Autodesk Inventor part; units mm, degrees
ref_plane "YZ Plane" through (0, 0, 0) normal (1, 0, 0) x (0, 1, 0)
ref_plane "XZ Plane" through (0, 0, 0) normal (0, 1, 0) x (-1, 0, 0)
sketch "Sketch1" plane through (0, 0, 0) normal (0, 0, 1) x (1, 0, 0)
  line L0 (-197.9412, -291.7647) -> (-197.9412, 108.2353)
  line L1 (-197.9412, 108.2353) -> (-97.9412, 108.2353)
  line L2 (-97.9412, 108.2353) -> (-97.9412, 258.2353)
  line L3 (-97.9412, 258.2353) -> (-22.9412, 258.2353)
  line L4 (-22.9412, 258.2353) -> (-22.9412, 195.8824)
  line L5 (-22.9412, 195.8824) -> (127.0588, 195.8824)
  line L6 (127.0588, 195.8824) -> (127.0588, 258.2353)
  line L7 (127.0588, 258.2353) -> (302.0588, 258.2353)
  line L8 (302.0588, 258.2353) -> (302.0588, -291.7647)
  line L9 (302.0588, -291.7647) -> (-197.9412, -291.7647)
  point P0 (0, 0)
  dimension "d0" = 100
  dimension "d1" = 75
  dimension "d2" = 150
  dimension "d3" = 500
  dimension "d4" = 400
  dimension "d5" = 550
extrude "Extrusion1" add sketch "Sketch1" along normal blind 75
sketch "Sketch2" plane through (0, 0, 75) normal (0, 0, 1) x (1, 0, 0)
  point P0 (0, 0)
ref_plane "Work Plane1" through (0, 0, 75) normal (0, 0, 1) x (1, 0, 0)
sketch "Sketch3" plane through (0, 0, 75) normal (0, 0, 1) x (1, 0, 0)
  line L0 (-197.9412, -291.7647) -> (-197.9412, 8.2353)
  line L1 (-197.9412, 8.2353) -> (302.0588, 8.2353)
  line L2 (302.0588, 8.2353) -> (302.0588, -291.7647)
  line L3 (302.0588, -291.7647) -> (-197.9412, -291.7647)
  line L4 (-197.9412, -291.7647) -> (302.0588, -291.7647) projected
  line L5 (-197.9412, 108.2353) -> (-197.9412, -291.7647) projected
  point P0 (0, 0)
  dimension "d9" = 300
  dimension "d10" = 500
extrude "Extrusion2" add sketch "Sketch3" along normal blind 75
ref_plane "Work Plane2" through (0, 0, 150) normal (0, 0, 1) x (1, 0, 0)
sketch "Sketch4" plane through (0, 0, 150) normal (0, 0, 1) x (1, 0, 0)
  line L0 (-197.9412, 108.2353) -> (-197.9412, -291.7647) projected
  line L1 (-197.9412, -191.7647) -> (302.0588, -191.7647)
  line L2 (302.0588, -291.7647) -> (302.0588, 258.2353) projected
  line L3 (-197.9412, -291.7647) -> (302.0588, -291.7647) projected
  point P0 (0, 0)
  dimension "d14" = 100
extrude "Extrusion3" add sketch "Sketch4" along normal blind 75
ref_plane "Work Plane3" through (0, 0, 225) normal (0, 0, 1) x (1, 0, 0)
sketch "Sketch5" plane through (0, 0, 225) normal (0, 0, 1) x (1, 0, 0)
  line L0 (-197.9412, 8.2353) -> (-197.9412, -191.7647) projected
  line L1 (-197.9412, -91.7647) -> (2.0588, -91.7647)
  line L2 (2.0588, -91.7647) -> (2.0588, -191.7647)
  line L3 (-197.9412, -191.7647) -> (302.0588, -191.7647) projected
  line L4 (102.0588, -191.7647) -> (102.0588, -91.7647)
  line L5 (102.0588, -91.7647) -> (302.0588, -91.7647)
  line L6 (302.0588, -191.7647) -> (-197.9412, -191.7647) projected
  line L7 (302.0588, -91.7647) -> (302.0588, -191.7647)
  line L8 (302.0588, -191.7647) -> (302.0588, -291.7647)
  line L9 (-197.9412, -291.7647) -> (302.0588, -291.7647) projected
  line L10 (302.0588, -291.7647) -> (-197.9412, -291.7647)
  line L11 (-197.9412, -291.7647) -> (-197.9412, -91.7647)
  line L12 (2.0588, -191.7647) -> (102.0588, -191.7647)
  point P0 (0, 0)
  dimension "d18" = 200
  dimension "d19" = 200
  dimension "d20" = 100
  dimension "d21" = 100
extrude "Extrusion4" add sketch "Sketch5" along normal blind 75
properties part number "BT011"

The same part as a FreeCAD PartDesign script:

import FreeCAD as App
import Part
import Sketcher
Q = App.Units.Quantity

doc = App.newDocument("Part")
body = doc.addObject("PartDesign::Body", "Body")

# Sketch on XY plane
sketch1 = doc.addObject("Sketcher::SketchObject", "Sketch")
body.addObject(sketch1)
sketch1.AttachmentSupport = (doc.XY_Plane, [""])
sketch1.MapMode = "FlatFace"
sketch1.addGeometry([
    Part.LineSegment(App.Vector(-198, 108, 0), App.Vector(-198, -292, 0)),  # 0
    Part.LineSegment(App.Vector(-198, -292, 0), App.Vector(302, -292, 0)),  # 1
    Part.LineSegment(App.Vector(302, -292, 0), App.Vector(302, 258, 0)),  # 2
    Part.LineSegment(App.Vector(302, 258, 0), App.Vector(127, 258, 0)),  # 3
    Part.LineSegment(App.Vector(127, 258, 0), App.Vector(127, 196, 0)),  # 4
    Part.LineSegment(App.Vector(127, 196, 0), App.Vector(-23, 196, 0)),  # 5
    Part.LineSegment(App.Vector(-23, 196, 0), App.Vector(-23, 258, 0)),  # 6
    Part.LineSegment(App.Vector(-23, 258, 0), App.Vector(-98, 258, 0)),  # 7
    Part.LineSegment(App.Vector(-98, 258, 0), App.Vector(-98, 108, 0)),  # 8
    Part.LineSegment(App.Vector(-98, 108, 0), App.Vector(-198, 108, 0)),  # 9
], False)
sketch1.addConstraint([
    Sketcher.Constraint("Coincident", 0, 2, 1, 1),
    Sketcher.Constraint("Coincident", 1, 2, 2, 1),
    Sketcher.Constraint("Coincident", 2, 2, 3, 1),
    Sketcher.Constraint("Coincident", 3, 2, 4, 1),
    Sketcher.Constraint("Coincident", 4, 2, 5, 1),
    Sketcher.Constraint("Coincident", 5, 2, 6, 1),
    Sketcher.Constraint("Coincident", 6, 2, 7, 1),
    Sketcher.Constraint("Coincident", 7, 2, 8, 1),
    Sketcher.Constraint("Coincident", 8, 2, 9, 1),
    Sketcher.Constraint("Coincident", 9, 2, 0, 1),
    Sketcher.Constraint("Vertical", 0),
    Sketcher.Constraint("Horizontal", 1),
    Sketcher.Constraint("Vertical", 2),
    Sketcher.Constraint("Horizontal", 3),
    Sketcher.Constraint("Vertical", 4),
    Sketcher.Constraint("Horizontal", 5),
    Sketcher.Constraint("Vertical", 6),
    Sketcher.Constraint("Horizontal", 7),
    Sketcher.Constraint("Vertical", 8),
    Sketcher.Constraint("Horizontal", 9),
    Sketcher.Constraint("Horizontal", 3, 2, 6, 2),
    Sketcher.Constraint("Equal", 5, 8),
    Sketcher.Constraint("DistanceX", 1, 1, 1, 2, Q("500 mm")),
    Sketcher.Constraint("DistanceX", 5, 2, 5, 1, Q("150 mm")),
    Sketcher.Constraint("DistanceX", 7, 2, 7, 1, Q("75 mm")),
    Sketcher.Constraint("DistanceX", 9, 2, 9, 1, Q("100 mm")),
    Sketcher.Constraint("DistanceY", 0, 2, 0, 1, Q("400 mm")),
    Sketcher.Constraint("DistanceY", 4, 2, 4, 1, Q("62.353 mm")),
    Sketcher.Constraint("DistanceX", 0, 2, -1, 1, Q("197.9412 mm")),
    Sketcher.Constraint("DistanceY", 0, 2, -1, 1, Q("291.7647 mm")),
])
pad1 = doc.addObject("PartDesign::Pad", "Pad")
body.addObject(pad1)
pad1.Profile = sketch1
pad1.Length = 75

# Sketch on XY plane
sketch2 = doc.addObject("Sketcher::SketchObject", "Sketch001")
body.addObject(sketch2)
sketch2.AttachmentSupport = (doc.XY_Plane, [""])
sketch2.MapMode = "FlatFace"
sketch2.AttachmentOffset = App.Placement(App.Vector(0, 0, 75), App.Rotation())
sketch2.addGeometry([
    Part.LineSegment(App.Vector(-198, 8, 0), App.Vector(-198, -292, 0)),
    Part.LineSegment(App.Vector(-198, -292, 0), App.Vector(302, -292, 0)),
    Part.LineSegment(App.Vector(302, -292, 0), App.Vector(302, 8, 0)),
    Part.LineSegment(App.Vector(302, 8, 0), App.Vector(-198, 8, 0)),
], False)
sketch2.addConstraint([
    Sketcher.Constraint("Coincident", 0, 2, 1, 1),
    Sketcher.Constraint("Coincident", 1, 2, 2, 1),
    Sketcher.Constraint("Coincident", 2, 2, 3, 1),
    Sketcher.Constraint("Coincident", 3, 2, 0, 1),
    Sketcher.Constraint("Vertical", 0),
    Sketcher.Constraint("Horizontal", 1),
    Sketcher.Constraint("Vertical", 2),
    Sketcher.Constraint("Horizontal", 3),
    Sketcher.Constraint("DistanceX", 1, 1, 1, 2, Q("500 mm")),
    Sketcher.Constraint("DistanceY", 0, 2, 0, 1, Q("300 mm")),
    Sketcher.Constraint("DistanceX", 0, 2, -1, 1, Q("197.9412 mm")),
    Sketcher.Constraint("DistanceY", 0, 2, -1, 1, Q("291.7647 mm")),
])
pad2 = doc.addObject("PartDesign::Pad", "Pad001")
body.addObject(pad2)
pad2.Profile = sketch2
pad2.Length = 75

# Sketch on XY plane
sketch3 = doc.addObject("Sketcher::SketchObject", "Sketch002")
body.addObject(sketch3)
sketch3.AttachmentSupport = (doc.XY_Plane, [""])
sketch3.MapMode = "FlatFace"
sketch3.AttachmentOffset = App.Placement(App.Vector(0, 0, 150), App.Rotation())
sketch3.addGeometry([
    Part.LineSegment(App.Vector(302, -192, 0), App.Vector(-198, -192, 0)),
    Part.LineSegment(App.Vector(-198, -192, 0), App.Vector(-198, -292, 0)),
    Part.LineSegment(App.Vector(-198, -292, 0), App.Vector(302, -292, 0)),
    Part.LineSegment(App.Vector(302, -292, 0), App.Vector(302, -192, 0)),
], False)
sketch3.addConstraint([
    Sketcher.Constraint("Coincident", 0, 2, 1, 1),
    Sketcher.Constraint("Coincident", 1, 2, 2, 1),
    Sketcher.Constraint("Coincident", 2, 2, 3, 1),
    Sketcher.Constraint("Coincident", 3, 2, 0, 1),
    Sketcher.Constraint("Horizontal", 0),
    Sketcher.Constraint("Vertical", 1),
    Sketcher.Constraint("Horizontal", 2),
    Sketcher.Constraint("Vertical", 3),
    Sketcher.Constraint("DistanceY", 1, 2, 1, 1, Q("100 mm")),
    Sketcher.Constraint("DistanceX", 0, 2, 0, 1, Q("500 mm")),
    Sketcher.Constraint("DistanceX", 0, 2, -1, 1, Q("197.9412 mm")),
    Sketcher.Constraint("DistanceY", 0, 2, -1, 1, Q("191.7647 mm")),
])
pad3 = doc.addObject("PartDesign::Pad", "Pad002")
body.addObject(pad3)
pad3.Profile = sketch3
pad3.Length = 75

# Sketch on XY plane
sketch4 = doc.addObject("Sketcher::SketchObject", "Sketch003")
body.addObject(sketch4)
sketch4.AttachmentSupport = (doc.XY_Plane, [""])
sketch4.MapMode = "FlatFace"
sketch4.AttachmentOffset = App.Placement(App.Vector(0, 0, 225), App.Rotation())
sketch4.addGeometry([
    Part.LineSegment(App.Vector(2, -92, 0), App.Vector(-198, -92, 0)),  # 0
    Part.LineSegment(App.Vector(-198, -92, 0), App.Vector(-198, -292, 0)),  # 1
    Part.LineSegment(App.Vector(-198, -292, 0), App.Vector(302, -292, 0)),  # 2
    Part.LineSegment(App.Vector(302, -292, 0), App.Vector(302, -92, 0)),  # 3
    Part.LineSegment(App.Vector(302, -92, 0), App.Vector(102, -92, 0)),  # 4
    Part.LineSegment(App.Vector(102, -92, 0), App.Vector(102, -192, 0)),  # 5
    Part.LineSegment(App.Vector(102, -192, 0), App.Vector(2, -192, 0)),  # 6
    Part.LineSegment(App.Vector(2, -192, 0), App.Vector(2, -92, 0)),  # 7
], False)
sketch4.addConstraint([
    Sketcher.Constraint("Coincident", 0, 2, 1, 1),
    Sketcher.Constraint("Coincident", 1, 2, 2, 1),
    Sketcher.Constraint("Coincident", 2, 2, 3, 1),
    Sketcher.Constraint("Coincident", 3, 2, 4, 1),
    Sketcher.Constraint("Coincident", 4, 2, 5, 1),
    Sketcher.Constraint("Coincident", 5, 2, 6, 1),
    Sketcher.Constraint("Coincident", 6, 2, 7, 1),
    Sketcher.Constraint("Coincident", 7, 2, 0, 1),
    Sketcher.Constraint("Horizontal", 0),
    Sketcher.Constraint("Vertical", 1),
    Sketcher.Constraint("Horizontal", 2),
    Sketcher.Constraint("Vertical", 3),
    Sketcher.Constraint("Horizontal", 4),
    Sketcher.Constraint("Vertical", 5),
    Sketcher.Constraint("Horizontal", 6),
    Sketcher.Constraint("Vertical", 7),
    Sketcher.Constraint("Horizontal", 0, 2, 3, 2),
    Sketcher.Constraint("Equal", 0, 4),
    Sketcher.Constraint("Equal", 4, 1),
    Sketcher.Constraint("Equal", 6, 5),
    Sketcher.Constraint("DistanceX", 0, 2, 0, 1, Q("200 mm")),
    Sketcher.Constraint("DistanceX", 6, 2, 6, 1, Q("100 mm")),
    Sketcher.Constraint("DistanceX", 0, 2, -1, 1, Q("197.9412 mm")),
    Sketcher.Constraint("DistanceY", 0, 2, -1, 1, Q("91.7647 mm")),
])
pad4 = doc.addObject("PartDesign::Pad", "Pad003")
body.addObject(pad4)
pad4.Profile = sketch4
pad4.Length = 75

doc.recompute()
